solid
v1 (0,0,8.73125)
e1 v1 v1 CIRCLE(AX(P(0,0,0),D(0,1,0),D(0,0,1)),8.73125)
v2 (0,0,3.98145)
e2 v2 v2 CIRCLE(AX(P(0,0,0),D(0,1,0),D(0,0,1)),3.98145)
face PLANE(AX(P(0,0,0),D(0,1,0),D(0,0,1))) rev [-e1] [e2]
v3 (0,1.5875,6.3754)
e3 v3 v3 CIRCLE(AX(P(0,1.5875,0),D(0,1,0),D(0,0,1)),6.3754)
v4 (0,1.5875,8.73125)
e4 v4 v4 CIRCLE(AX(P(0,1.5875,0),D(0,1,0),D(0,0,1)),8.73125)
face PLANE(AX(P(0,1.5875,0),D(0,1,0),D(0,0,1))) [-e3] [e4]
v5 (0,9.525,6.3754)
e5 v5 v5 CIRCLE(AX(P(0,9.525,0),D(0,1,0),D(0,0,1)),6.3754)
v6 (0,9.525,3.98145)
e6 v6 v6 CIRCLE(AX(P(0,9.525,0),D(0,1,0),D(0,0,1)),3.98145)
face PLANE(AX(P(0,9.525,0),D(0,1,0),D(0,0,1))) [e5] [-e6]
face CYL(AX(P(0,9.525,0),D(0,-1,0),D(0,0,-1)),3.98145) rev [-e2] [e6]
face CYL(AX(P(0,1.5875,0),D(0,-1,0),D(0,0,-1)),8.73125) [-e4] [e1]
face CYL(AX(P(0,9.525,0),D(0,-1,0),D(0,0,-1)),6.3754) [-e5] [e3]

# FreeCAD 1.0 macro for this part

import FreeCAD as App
import Part
import Sketcher

V = App.Vector
Q = App.Units.Quantity

doc = App.newDocument("Part")
body = doc.addObject("PartDesign::Body", "Body")

# Sketch on XZ plane
sketch1 = body.newObject("Sketcher::SketchObject", "Sketch")
sketch1.AttachmentSupport = (doc.getObject("XZ_Plane"), [""])
sketch1.MapMode = "FlatFace"
sketch1.addGeometry([
    Part.Circle(V(0, 0, 0), V(0, 0, 1), 6.4),
    Part.Circle(V(0, 0, 0), V(0, 0, 1), 4),
], False)
sketch1.addConstraint([
    Sketcher.Constraint("Coincident", 0, 3, -1, 1),
    Sketcher.Constraint("Coincident", 1, 3, -1, 1),
    Sketcher.Constraint("Diameter", 0, Q("0.502 in")),
    Sketcher.Constraint("Diameter", 1, Q("0.3135 in")),
])
pad1 = body.newObject("PartDesign::Pad", "Pad")
pad1.Profile = sketch1
pad1.Length = Q("0.375 in")
pad1.Reversed = True

# Sketch on XZ plane
sketch2 = body.newObject("Sketcher::SketchObject", "Sketch001")
sketch2.AttachmentSupport = (doc.getObject("XZ_Plane"), [""])
sketch2.MapMode = "FlatFace"
sketch2.addGeometry([
    Part.Circle(V(0, 0, 0), V(0, 0, 1), 9),
    Part.Circle(V(0, 0, 0), V(0, 0, 1), 6),
], False)
sketch2.addConstraint([
    Sketcher.Constraint("Coincident", 0, 3, -1, 1),
    Sketcher.Constraint("Coincident", 1, 3, -1, 1),
    Sketcher.Constraint("Diameter", 0, Q("0.6875 in")),
    Sketcher.Constraint("Diameter", 1, Q("0.502 in")),
])
pad2 = body.newObject("PartDesign::Pad", "Pad001")
pad2.Profile = sketch2
pad2.Length = Q("0.0625 in")
pad2.Reversed = True

doc.recompute()
